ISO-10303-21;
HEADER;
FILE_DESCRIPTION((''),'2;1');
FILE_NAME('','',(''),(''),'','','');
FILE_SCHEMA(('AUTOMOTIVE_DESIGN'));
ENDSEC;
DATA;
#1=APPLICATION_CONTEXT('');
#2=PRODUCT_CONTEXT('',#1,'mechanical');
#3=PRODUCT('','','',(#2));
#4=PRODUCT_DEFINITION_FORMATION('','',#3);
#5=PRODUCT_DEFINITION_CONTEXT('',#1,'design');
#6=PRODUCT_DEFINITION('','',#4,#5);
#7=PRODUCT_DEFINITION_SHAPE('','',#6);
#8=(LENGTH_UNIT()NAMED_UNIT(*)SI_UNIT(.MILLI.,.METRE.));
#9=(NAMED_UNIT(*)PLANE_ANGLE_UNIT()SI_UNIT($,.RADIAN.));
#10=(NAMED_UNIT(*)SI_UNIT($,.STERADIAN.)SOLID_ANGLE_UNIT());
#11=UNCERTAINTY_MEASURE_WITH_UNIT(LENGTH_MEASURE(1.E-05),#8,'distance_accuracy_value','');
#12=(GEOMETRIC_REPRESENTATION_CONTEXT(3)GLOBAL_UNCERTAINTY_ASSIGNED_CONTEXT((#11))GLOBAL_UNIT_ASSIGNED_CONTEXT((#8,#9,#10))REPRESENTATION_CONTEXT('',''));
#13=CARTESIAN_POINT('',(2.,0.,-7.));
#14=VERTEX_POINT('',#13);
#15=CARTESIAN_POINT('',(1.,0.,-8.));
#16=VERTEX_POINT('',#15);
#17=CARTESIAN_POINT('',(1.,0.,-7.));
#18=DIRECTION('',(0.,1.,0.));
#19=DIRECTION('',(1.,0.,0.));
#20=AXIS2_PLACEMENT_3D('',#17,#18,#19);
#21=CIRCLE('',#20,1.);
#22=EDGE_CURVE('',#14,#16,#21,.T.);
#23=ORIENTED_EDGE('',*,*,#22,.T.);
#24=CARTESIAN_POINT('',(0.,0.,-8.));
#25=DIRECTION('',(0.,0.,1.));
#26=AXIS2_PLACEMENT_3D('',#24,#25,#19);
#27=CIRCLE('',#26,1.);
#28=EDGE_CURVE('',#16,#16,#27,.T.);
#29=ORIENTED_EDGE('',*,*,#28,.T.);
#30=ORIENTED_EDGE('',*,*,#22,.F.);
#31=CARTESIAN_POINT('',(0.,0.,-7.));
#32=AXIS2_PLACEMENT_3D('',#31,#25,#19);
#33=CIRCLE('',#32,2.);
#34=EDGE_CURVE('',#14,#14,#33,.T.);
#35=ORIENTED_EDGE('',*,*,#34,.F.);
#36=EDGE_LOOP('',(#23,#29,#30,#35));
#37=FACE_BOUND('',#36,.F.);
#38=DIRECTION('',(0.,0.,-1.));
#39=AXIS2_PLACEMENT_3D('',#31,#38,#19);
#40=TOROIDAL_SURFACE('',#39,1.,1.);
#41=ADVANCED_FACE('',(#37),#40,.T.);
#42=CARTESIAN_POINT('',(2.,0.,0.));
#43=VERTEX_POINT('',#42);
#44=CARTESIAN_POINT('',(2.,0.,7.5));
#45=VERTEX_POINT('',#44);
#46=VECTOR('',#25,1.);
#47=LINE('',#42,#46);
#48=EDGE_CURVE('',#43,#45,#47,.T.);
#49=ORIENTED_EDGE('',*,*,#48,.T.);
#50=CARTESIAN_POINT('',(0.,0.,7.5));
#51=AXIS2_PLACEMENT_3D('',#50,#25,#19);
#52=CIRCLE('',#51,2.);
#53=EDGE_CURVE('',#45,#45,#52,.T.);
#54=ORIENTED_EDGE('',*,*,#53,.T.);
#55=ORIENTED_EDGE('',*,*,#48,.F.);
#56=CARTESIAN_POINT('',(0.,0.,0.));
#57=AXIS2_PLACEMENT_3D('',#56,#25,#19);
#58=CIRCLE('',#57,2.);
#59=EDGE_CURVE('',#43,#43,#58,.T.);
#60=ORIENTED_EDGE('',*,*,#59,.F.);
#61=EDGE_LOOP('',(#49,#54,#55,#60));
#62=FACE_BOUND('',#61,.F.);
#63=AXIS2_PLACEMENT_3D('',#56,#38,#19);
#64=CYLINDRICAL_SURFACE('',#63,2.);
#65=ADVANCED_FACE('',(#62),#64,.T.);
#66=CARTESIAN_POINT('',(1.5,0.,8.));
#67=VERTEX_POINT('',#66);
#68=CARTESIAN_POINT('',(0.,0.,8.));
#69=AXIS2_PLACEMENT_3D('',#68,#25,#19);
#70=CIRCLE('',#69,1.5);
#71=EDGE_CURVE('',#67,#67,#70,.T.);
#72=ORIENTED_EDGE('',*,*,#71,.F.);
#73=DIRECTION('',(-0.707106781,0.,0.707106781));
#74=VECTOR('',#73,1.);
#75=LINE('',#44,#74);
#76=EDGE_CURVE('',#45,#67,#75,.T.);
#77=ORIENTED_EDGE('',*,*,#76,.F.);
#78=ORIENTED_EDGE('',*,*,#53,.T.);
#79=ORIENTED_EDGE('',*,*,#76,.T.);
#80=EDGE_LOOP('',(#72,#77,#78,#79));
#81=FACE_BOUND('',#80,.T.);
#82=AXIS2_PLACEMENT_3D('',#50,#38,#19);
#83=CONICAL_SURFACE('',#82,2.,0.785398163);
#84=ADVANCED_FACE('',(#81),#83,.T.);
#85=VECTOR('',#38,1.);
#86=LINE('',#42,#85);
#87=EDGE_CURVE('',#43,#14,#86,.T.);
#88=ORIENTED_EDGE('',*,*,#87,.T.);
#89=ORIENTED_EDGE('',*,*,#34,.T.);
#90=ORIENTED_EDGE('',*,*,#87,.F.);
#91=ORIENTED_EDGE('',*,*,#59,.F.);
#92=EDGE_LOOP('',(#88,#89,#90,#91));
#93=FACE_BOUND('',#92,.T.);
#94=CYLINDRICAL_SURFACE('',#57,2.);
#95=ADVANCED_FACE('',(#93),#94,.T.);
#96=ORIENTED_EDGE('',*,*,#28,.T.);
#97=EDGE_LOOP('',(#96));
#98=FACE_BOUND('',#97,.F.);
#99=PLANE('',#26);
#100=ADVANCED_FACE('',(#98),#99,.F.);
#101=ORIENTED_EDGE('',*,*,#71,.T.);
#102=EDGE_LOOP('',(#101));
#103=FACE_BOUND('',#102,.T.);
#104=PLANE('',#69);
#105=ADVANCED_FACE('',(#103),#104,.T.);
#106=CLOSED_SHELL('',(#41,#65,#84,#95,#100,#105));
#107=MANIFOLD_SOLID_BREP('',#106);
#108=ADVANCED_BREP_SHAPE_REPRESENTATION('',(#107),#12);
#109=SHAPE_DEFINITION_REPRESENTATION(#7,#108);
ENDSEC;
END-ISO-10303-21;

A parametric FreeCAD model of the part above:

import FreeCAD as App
import Part
import Sketcher
from FreeCAD import Vector
Q = App.Units.Quantity


def edges_at(feature, points):
    """Names of the edges that pass closest to the given points."""
    edges = feature.Shape.Edges
    near = lambda p: min(range(len(edges)), key=lambda i: edges[i].distToShape(Part.Vertex(*p))[0])
    return sorted({f"Edge{near(p) + 1}" for p in points})

doc = App.newDocument("Part")
body = doc.addObject("PartDesign::Body", "Body")

# Sketch on XY plane
sketch1 = body.newObject("Sketcher::SketchObject", "Sketch")
sketch1.AttachmentSupport = (doc.getObject("XY_Plane"), [""])
sketch1.MapMode = "FlatFace"
sketch1.addGeometry(Part.Circle(Vector(0, 0, 0), Vector(0, 0, 1), 2), False)
sketch1.addConstraint(Sketcher.Constraint("Coincident", 0, 3, -1, 1))
sketch1.addConstraint(Sketcher.Constraint("Diameter", 0, Q("4 mm")))
pad1 = body.newObject("PartDesign::Pad", "Pad")
pad1.Profile = sketch1
pad1.Length = 16
pad1.Midplane = True
doc.recompute()

fillet = body.newObject("PartDesign::Fillet", "Fillet")
fillet.Base = (pad1, edges_at(pad1, [(-2, 0, -8)]))
fillet.Radius = 1
doc.recompute()

chamfer = body.newObject("PartDesign::Chamfer", "Chamfer")
chamfer.Base = (fillet, edges_at(fillet, [(-2, 0, 8)]))
chamfer.Size = 0.5

doc.recompute()
